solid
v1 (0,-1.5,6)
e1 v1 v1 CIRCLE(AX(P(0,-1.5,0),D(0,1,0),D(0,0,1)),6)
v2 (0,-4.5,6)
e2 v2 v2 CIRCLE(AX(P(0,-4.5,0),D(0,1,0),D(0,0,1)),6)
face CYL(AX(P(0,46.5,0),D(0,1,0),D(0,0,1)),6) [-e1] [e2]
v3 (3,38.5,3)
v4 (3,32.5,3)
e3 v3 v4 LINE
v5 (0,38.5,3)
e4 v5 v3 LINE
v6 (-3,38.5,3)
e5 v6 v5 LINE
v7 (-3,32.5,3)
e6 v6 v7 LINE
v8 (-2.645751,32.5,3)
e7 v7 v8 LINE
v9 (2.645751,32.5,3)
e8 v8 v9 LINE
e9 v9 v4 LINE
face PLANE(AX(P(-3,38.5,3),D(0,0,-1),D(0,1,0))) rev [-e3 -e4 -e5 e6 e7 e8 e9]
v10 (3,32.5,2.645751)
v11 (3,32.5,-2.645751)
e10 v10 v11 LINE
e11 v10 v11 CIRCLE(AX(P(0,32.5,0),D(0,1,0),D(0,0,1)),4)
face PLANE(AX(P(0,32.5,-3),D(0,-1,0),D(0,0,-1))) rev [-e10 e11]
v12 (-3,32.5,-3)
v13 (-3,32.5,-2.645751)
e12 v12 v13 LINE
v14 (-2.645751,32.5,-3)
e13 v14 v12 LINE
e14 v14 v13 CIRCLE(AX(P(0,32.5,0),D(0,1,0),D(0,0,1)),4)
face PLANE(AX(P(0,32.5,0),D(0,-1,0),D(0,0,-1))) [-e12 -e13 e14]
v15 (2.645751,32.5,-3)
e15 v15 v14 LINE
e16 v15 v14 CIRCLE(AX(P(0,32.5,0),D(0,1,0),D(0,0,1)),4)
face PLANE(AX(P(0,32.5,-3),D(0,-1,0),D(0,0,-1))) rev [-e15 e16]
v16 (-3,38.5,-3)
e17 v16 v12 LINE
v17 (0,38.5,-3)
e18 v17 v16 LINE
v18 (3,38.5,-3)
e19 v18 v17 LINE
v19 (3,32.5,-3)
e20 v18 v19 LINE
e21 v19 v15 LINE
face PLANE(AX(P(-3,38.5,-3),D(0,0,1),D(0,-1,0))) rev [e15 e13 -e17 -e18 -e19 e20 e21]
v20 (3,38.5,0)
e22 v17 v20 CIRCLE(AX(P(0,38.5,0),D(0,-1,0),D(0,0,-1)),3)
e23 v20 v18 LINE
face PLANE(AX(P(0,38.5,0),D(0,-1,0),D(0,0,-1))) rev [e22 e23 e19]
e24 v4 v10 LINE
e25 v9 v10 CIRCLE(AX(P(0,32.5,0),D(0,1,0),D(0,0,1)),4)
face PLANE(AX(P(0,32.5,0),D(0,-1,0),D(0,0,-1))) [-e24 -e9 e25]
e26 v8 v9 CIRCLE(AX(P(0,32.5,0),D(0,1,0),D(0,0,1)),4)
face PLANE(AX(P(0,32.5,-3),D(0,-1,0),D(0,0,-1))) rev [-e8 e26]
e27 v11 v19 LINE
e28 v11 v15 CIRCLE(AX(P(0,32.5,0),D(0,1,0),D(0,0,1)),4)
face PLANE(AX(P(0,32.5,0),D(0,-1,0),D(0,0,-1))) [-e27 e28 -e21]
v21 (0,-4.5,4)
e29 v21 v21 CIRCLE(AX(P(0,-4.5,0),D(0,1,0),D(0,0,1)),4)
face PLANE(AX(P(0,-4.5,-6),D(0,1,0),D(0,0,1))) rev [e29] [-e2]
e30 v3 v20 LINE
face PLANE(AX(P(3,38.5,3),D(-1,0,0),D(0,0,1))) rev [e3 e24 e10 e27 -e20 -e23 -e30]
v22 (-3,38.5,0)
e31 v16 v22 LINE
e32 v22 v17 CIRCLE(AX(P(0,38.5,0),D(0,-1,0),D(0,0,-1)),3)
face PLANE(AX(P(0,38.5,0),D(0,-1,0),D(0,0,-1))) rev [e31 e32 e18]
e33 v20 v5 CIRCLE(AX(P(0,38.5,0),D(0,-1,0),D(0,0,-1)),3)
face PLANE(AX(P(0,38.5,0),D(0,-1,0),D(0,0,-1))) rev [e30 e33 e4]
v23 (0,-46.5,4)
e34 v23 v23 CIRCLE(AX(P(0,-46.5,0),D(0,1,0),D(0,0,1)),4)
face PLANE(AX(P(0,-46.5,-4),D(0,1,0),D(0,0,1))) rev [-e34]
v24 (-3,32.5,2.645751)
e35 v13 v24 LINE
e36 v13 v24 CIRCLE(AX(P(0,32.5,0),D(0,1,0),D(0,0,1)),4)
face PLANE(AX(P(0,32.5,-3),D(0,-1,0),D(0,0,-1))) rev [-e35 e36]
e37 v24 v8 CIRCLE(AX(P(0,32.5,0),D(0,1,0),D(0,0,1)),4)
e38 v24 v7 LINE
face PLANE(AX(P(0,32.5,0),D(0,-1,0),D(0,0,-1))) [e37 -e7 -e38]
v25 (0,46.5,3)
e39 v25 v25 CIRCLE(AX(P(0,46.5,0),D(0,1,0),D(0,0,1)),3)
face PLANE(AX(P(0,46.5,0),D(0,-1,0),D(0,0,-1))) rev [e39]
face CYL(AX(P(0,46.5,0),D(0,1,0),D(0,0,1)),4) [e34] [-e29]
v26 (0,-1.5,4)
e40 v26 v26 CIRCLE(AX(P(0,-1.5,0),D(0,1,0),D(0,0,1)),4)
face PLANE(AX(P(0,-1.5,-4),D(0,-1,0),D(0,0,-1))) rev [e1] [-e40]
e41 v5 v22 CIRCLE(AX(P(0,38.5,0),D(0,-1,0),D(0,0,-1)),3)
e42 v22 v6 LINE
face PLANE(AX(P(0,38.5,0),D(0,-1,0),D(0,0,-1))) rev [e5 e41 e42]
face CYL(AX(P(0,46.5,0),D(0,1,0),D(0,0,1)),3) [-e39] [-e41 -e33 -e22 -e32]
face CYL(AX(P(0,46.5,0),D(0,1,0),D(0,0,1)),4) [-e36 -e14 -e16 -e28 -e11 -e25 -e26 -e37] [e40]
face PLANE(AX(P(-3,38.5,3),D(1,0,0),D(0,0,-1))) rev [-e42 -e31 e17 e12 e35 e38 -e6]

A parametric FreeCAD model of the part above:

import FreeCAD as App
import Part
import Sketcher


def add_polygon(sketch, points):
    """Adds a closed chain of lines whose ends are joined by coincident constraints."""
    first, n = sketch.GeometryCount, len(points)
    for a, b in zip(points, points[1:] + points[:1]):
        sketch.addGeometry(Part.LineSegment(App.Vector(*a, 0), App.Vector(*b, 0)), False)
    for i in range(n):
        sketch.addConstraint(Sketcher.Constraint("Coincident", first + i, 2, first + (i + 1) % n, 1))

doc = App.newDocument("Part")
params = doc.addObject("Spreadsheet::Sheet", "Params")
for row, (alias, value) in enumerate([
    ("sketch1_width", "93 mm"),
    ("sketch1_width2", "42 mm"),
    ("sketch1_width3", "3 mm"),
    ("sketch1_width4", "34 mm"),
    ("sketch1_height", "4 mm"),
    ("revolution_angle", "360 deg"),
    ("sketch2_width", "6 mm"),
    ("pad1_length", "6 mm"),
], start=1):
    params.set(f"A{row}", alias)
    params.set(f"B{row}", "=" + value)
    params.setAlias(f"B{row}", alias)

body = doc.addObject("PartDesign::Body", "Body")

# Sketch on YZ plane
sketch1 = body.newObject("Sketcher::SketchObject", "Sketch")
sketch1.AttachmentSupport = (doc.getObject("YZ_Plane"), [""])
sketch1.MapMode = "FlatFace"
add_polygon(sketch1, [(46.5, -3), (46.5, 0), (-46.5, 0), (-46.5, -4), (-4.5, -4), (-4.5, -6), (-1.5, -6), (-1.5, -4), (32.5, -4), (32.5, -3)])  # lines 0-9
sketch1.addConstraint([
    Sketcher.Constraint("Vertical", 0),
    Sketcher.Constraint("Horizontal", 1),
    Sketcher.Constraint("Vertical", 2),
    Sketcher.Constraint("Horizontal", 3),
    Sketcher.Constraint("Vertical", 4),
    Sketcher.Constraint("Horizontal", 5),
    Sketcher.Constraint("Vertical", 6),
    Sketcher.Constraint("Horizontal", 7),
    Sketcher.Constraint("Vertical", 8),
    Sketcher.Constraint("Horizontal", 9),
    Sketcher.Constraint("Symmetric", 0, 2, 1, 2, -1, 1),
    Sketcher.Constraint("Horizontal", 3, 2, 6, 2),
    Sketcher.Constraint("Equal", 5, 0),
    Sketcher.Constraint("DistanceX", 1, 2, 1, 1, 93.0),
    Sketcher.Constraint("DistanceX", 3, 1, 3, 2, 42.0),
    Sketcher.Constraint("DistanceX", 5, 1, 5, 2, 3.0),
    Sketcher.Constraint("DistanceX", 7, 1, 7, 2, 34.0),
    Sketcher.Constraint("DistanceY", 2, 2, 2, 1, 4.0),
    Sketcher.Constraint("DistanceY", 4, 2, 4, 1, 2.0),
])
sketch1.setExpression("Constraints[23]", "Params.sketch1_width")
sketch1.setExpression("Constraints[24]", "Params.sketch1_width2")
sketch1.setExpression("Constraints[25]", "Params.sketch1_width3")
sketch1.setExpression("Constraints[26]", "Params.sketch1_width4")
sketch1.setExpression("Constraints[27]", "Params.sketch1_height")
revolution = body.newObject("PartDesign::Revolution", "Revolution")
revolution.Profile = sketch1
revolution.ReferenceAxis = (sketch1, ["H_Axis"])
revolution.setExpression("Angle", "Params.revolution_angle")

# Sketch on XZ plane
sketch2 = body.newObject("Sketcher::SketchObject", "Sketch001")
sketch2.AttachmentSupport = (doc.getObject("XZ_Plane"), [""])
sketch2.MapMode = "FlatFace"
sketch2.AttachmentOffset = App.Placement(App.Vector(0, 0, -32.5), App.Rotation())
add_polygon(sketch2, [(-3, -3), (-3, 3), (3, 3), (3, -3)])  # lines 0-3
sketch2.addConstraint([
    Sketcher.Constraint("Vertical", 0),
    Sketcher.Constraint("Horizontal", 1),
    Sketcher.Constraint("Vertical", 2),
    Sketcher.Constraint("Horizontal", 3),
    Sketcher.Constraint("Symmetric", 0, 2, 2, 2, -1, 1),
    Sketcher.Constraint("Equal", 3, 0),
    Sketcher.Constraint("DistanceX", 1, 1, 1, 2, 6.0),
])
sketch2.setExpression("Constraints[10]", "Params.sketch2_width")
pad1 = body.newObject("PartDesign::Pad", "Pad")
pad1.Profile = sketch2
pad1.setExpression("Length", "Params.pad1_length")
pad1.Reversed = True

doc.recompute()
